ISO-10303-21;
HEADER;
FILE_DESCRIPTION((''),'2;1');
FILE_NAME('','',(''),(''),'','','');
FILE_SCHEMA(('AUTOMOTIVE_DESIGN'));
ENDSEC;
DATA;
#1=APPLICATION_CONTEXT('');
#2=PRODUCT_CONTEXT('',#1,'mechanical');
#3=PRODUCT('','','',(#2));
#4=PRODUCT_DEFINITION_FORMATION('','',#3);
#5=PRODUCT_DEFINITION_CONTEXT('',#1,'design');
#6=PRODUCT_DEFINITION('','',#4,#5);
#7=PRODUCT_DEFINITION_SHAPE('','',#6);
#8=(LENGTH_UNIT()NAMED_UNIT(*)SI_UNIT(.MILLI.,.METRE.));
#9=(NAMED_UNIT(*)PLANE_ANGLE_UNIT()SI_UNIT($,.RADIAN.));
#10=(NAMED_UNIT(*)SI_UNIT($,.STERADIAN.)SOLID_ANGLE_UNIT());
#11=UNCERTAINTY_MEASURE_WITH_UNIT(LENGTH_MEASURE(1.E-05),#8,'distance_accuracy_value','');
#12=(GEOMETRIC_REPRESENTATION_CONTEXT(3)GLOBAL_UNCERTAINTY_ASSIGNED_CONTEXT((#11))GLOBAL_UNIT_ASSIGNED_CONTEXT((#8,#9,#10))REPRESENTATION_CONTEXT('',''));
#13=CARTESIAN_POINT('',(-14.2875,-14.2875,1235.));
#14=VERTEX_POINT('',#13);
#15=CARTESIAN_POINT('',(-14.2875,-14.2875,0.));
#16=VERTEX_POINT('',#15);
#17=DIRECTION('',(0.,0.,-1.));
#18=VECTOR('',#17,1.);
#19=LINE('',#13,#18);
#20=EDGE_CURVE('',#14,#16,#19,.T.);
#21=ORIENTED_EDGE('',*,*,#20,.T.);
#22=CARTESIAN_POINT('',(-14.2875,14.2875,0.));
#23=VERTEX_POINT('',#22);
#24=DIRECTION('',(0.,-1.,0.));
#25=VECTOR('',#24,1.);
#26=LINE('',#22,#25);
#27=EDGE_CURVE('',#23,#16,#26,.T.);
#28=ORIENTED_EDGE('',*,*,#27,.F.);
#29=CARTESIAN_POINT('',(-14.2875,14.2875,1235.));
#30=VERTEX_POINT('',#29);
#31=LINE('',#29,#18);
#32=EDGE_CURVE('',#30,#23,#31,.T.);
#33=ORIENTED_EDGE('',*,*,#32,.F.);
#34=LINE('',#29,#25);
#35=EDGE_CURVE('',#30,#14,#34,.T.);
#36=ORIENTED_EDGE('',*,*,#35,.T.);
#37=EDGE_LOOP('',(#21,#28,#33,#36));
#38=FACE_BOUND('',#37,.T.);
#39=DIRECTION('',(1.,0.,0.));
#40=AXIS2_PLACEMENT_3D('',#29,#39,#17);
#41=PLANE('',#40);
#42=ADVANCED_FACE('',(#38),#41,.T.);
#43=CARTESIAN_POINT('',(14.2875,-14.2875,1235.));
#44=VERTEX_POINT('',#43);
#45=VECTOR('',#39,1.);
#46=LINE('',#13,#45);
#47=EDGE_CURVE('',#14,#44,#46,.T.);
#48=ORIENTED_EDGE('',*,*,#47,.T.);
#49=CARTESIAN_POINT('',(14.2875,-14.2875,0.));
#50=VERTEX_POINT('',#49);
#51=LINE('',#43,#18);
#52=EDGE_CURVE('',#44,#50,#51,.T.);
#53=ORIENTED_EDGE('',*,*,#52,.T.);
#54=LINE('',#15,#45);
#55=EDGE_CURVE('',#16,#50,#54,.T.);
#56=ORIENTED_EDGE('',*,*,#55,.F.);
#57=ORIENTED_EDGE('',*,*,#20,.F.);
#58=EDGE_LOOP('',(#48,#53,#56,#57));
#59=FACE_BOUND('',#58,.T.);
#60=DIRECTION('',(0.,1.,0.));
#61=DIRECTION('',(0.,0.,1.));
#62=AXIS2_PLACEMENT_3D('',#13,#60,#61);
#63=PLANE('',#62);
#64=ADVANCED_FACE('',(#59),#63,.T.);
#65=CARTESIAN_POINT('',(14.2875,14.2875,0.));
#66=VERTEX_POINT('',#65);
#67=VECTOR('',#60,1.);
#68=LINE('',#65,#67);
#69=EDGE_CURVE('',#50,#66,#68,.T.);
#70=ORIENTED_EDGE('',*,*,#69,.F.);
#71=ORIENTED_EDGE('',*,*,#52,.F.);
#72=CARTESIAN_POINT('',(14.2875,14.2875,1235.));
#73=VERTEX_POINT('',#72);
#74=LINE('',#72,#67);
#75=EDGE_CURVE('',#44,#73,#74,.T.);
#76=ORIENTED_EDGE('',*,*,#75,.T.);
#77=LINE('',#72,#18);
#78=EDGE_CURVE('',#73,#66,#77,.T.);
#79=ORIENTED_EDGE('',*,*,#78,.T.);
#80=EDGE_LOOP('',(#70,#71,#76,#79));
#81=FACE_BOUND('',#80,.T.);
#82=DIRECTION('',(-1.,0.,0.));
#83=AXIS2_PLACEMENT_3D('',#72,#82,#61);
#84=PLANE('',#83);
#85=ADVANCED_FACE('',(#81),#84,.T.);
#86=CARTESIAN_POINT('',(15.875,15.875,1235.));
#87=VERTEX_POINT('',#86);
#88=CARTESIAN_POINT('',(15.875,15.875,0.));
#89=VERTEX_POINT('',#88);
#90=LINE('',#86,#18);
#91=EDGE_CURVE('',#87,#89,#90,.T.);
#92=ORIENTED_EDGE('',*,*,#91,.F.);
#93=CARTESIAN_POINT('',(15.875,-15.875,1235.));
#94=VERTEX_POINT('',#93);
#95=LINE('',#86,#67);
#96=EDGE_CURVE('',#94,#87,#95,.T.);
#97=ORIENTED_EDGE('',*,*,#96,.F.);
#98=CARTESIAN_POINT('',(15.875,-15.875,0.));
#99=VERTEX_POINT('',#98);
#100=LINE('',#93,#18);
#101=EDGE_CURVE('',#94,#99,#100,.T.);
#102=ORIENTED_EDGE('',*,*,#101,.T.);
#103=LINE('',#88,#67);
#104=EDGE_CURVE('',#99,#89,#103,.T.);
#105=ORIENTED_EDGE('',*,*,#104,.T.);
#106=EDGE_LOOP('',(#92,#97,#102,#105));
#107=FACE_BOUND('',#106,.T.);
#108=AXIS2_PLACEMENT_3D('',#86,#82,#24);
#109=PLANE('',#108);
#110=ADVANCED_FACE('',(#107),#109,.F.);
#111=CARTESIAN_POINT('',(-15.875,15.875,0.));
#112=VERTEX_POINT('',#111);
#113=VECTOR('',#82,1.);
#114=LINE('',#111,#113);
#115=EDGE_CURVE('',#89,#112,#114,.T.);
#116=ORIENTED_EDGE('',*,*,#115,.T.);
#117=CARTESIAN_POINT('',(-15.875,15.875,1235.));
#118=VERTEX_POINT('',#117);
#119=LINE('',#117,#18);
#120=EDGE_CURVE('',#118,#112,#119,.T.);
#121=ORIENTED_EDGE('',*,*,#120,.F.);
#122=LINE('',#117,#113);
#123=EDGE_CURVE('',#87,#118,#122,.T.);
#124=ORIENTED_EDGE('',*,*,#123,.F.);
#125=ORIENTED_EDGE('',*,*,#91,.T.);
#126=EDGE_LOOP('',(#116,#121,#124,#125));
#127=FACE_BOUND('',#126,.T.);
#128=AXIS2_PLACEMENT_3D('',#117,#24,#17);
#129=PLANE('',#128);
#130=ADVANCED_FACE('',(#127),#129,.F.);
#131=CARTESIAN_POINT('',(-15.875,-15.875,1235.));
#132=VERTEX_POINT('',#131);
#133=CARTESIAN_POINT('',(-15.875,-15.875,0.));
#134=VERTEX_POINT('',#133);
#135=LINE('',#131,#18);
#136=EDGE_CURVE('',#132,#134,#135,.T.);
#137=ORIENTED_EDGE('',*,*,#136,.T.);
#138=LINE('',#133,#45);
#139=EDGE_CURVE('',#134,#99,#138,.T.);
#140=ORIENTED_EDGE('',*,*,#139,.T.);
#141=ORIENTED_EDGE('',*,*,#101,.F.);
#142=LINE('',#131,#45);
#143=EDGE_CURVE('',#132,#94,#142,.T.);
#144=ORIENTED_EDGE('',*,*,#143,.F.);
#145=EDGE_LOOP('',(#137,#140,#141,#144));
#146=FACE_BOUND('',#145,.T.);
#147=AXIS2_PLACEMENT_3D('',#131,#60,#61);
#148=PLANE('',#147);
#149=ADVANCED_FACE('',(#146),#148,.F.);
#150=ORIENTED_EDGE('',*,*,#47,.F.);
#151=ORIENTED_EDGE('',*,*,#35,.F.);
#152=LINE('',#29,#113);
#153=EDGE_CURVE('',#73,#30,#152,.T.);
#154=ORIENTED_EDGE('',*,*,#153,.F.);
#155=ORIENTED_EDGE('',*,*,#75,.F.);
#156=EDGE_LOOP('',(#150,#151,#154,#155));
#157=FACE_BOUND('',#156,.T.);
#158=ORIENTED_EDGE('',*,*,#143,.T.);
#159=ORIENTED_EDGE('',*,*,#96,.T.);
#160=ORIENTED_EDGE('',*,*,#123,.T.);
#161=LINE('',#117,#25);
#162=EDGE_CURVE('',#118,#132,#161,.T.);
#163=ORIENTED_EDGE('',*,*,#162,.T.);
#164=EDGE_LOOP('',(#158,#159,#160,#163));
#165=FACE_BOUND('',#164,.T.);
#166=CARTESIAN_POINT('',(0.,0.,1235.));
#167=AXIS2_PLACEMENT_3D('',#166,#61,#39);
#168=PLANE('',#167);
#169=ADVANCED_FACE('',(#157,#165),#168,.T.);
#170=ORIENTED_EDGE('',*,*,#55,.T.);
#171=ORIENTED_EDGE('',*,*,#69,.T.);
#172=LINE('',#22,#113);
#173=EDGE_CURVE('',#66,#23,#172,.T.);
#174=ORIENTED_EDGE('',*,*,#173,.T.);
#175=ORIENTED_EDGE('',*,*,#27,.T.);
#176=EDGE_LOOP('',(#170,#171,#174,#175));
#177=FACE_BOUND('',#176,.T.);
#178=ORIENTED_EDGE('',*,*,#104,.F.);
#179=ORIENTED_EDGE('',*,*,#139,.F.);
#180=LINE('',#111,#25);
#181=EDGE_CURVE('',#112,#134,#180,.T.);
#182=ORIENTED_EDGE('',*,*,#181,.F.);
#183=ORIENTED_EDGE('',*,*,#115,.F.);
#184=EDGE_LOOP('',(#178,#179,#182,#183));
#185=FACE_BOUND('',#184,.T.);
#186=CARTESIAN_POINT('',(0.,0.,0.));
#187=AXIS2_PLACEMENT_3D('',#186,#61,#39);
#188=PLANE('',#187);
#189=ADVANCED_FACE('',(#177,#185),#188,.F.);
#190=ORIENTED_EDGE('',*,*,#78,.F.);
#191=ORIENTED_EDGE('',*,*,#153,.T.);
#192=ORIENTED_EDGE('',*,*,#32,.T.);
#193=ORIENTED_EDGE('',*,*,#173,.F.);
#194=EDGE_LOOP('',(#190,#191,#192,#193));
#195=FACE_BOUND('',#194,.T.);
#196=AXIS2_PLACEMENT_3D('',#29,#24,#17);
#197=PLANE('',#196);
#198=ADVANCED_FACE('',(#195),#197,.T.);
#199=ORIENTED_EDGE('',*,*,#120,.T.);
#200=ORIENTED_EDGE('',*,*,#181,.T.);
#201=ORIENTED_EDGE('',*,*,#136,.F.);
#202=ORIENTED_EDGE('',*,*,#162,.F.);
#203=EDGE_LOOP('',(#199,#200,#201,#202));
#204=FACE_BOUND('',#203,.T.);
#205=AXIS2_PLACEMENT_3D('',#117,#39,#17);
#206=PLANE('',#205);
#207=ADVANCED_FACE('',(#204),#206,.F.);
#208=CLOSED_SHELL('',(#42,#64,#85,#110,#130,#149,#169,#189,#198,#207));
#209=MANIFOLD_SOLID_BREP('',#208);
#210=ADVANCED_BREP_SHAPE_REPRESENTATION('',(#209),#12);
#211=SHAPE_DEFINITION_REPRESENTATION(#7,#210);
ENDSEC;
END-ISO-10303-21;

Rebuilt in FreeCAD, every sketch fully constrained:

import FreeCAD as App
import Part
import Sketcher

V = App.Vector
Q = App.Units.Quantity


def add_polygon(sketch, points):
    """Adds a closed chain of lines whose ends are joined by coincident constraints."""
    first, n = sketch.GeometryCount, len(points)
    for a, b in zip(points, points[1:] + points[:1]):
        sketch.addGeometry(Part.LineSegment(App.Vector(*a, 0), App.Vector(*b, 0)), False)
    for i in range(n):
        sketch.addConstraint(Sketcher.Constraint("Coincident", first + i, 2, first + (i + 1) % n, 1))

doc = App.newDocument("Part")
params = doc.addObject("Spreadsheet::Sheet", "Params")
for row, (alias, value) in enumerate([
    ("sketch1_width", "1.25 in"),
    ("sketch1_width2", "1.125 in"),
    ("pad1_length", "1235 mm"),
], start=1):
    params.set(f"A{row}", alias)
    params.set(f"B{row}", "=" + value)
    params.setAlias(f"B{row}", alias)

body = doc.addObject("PartDesign::Body", "Body")

# Sketch on XY plane
sketch1 = body.newObject("Sketcher::SketchObject", "Sketch")
sketch1.AttachmentSupport = (doc.getObject("XY_Plane"), [""])
sketch1.MapMode = "FlatFace"
add_polygon(sketch1, [(-16, 16), (-16, -16), (16, -16), (16, 16)])  # lines 0-3
add_polygon(sketch1, [(14, -14), (-14, -14), (-14, 14), (14, 14)])  # lines 4-7
sketch1.addConstraint(Sketcher.Constraint("Vertical", 0))
sketch1.addConstraint(Sketcher.Constraint("Horizontal", 1))
sketch1.addConstraint(Sketcher.Constraint("Vertical", 2))
sketch1.addConstraint(Sketcher.Constraint("Horizontal", 3))
sketch1.addConstraint(Sketcher.Constraint("Horizontal", 4))
sketch1.addConstraint(Sketcher.Constraint("Vertical", 5))
sketch1.addConstraint(Sketcher.Constraint("Horizontal", 6))
sketch1.addConstraint(Sketcher.Constraint("Vertical", 7))
sketch1.addConstraint(Sketcher.Constraint("Symmetric", 0, 2, 2, 2, -1, 1))
sketch1.addConstraint(Sketcher.Constraint("Symmetric", 4, 2, 6, 2, -1, 1))
sketch1.addConstraint(Sketcher.Constraint("Equal", 3, 0))
sketch1.addConstraint(Sketcher.Constraint("Equal", 6, 5))
sketch1.addConstraint(Sketcher.Constraint("DistanceX", 1, 1, 1, 2, Q("1.25 in")))
sketch1.addConstraint(Sketcher.Constraint("DistanceX", 4, 2, 4, 1, Q("1.125 in")))
sketch1.setExpression("Constraints[20]", "Params.sketch1_width")
sketch1.setExpression("Constraints[21]", "Params.sketch1_width2")
pad1 = body.newObject("PartDesign::Pad", "Pad")
pad1.Profile = sketch1
pad1.setExpression("Length", "Params.pad1_length")

doc.recompute()
